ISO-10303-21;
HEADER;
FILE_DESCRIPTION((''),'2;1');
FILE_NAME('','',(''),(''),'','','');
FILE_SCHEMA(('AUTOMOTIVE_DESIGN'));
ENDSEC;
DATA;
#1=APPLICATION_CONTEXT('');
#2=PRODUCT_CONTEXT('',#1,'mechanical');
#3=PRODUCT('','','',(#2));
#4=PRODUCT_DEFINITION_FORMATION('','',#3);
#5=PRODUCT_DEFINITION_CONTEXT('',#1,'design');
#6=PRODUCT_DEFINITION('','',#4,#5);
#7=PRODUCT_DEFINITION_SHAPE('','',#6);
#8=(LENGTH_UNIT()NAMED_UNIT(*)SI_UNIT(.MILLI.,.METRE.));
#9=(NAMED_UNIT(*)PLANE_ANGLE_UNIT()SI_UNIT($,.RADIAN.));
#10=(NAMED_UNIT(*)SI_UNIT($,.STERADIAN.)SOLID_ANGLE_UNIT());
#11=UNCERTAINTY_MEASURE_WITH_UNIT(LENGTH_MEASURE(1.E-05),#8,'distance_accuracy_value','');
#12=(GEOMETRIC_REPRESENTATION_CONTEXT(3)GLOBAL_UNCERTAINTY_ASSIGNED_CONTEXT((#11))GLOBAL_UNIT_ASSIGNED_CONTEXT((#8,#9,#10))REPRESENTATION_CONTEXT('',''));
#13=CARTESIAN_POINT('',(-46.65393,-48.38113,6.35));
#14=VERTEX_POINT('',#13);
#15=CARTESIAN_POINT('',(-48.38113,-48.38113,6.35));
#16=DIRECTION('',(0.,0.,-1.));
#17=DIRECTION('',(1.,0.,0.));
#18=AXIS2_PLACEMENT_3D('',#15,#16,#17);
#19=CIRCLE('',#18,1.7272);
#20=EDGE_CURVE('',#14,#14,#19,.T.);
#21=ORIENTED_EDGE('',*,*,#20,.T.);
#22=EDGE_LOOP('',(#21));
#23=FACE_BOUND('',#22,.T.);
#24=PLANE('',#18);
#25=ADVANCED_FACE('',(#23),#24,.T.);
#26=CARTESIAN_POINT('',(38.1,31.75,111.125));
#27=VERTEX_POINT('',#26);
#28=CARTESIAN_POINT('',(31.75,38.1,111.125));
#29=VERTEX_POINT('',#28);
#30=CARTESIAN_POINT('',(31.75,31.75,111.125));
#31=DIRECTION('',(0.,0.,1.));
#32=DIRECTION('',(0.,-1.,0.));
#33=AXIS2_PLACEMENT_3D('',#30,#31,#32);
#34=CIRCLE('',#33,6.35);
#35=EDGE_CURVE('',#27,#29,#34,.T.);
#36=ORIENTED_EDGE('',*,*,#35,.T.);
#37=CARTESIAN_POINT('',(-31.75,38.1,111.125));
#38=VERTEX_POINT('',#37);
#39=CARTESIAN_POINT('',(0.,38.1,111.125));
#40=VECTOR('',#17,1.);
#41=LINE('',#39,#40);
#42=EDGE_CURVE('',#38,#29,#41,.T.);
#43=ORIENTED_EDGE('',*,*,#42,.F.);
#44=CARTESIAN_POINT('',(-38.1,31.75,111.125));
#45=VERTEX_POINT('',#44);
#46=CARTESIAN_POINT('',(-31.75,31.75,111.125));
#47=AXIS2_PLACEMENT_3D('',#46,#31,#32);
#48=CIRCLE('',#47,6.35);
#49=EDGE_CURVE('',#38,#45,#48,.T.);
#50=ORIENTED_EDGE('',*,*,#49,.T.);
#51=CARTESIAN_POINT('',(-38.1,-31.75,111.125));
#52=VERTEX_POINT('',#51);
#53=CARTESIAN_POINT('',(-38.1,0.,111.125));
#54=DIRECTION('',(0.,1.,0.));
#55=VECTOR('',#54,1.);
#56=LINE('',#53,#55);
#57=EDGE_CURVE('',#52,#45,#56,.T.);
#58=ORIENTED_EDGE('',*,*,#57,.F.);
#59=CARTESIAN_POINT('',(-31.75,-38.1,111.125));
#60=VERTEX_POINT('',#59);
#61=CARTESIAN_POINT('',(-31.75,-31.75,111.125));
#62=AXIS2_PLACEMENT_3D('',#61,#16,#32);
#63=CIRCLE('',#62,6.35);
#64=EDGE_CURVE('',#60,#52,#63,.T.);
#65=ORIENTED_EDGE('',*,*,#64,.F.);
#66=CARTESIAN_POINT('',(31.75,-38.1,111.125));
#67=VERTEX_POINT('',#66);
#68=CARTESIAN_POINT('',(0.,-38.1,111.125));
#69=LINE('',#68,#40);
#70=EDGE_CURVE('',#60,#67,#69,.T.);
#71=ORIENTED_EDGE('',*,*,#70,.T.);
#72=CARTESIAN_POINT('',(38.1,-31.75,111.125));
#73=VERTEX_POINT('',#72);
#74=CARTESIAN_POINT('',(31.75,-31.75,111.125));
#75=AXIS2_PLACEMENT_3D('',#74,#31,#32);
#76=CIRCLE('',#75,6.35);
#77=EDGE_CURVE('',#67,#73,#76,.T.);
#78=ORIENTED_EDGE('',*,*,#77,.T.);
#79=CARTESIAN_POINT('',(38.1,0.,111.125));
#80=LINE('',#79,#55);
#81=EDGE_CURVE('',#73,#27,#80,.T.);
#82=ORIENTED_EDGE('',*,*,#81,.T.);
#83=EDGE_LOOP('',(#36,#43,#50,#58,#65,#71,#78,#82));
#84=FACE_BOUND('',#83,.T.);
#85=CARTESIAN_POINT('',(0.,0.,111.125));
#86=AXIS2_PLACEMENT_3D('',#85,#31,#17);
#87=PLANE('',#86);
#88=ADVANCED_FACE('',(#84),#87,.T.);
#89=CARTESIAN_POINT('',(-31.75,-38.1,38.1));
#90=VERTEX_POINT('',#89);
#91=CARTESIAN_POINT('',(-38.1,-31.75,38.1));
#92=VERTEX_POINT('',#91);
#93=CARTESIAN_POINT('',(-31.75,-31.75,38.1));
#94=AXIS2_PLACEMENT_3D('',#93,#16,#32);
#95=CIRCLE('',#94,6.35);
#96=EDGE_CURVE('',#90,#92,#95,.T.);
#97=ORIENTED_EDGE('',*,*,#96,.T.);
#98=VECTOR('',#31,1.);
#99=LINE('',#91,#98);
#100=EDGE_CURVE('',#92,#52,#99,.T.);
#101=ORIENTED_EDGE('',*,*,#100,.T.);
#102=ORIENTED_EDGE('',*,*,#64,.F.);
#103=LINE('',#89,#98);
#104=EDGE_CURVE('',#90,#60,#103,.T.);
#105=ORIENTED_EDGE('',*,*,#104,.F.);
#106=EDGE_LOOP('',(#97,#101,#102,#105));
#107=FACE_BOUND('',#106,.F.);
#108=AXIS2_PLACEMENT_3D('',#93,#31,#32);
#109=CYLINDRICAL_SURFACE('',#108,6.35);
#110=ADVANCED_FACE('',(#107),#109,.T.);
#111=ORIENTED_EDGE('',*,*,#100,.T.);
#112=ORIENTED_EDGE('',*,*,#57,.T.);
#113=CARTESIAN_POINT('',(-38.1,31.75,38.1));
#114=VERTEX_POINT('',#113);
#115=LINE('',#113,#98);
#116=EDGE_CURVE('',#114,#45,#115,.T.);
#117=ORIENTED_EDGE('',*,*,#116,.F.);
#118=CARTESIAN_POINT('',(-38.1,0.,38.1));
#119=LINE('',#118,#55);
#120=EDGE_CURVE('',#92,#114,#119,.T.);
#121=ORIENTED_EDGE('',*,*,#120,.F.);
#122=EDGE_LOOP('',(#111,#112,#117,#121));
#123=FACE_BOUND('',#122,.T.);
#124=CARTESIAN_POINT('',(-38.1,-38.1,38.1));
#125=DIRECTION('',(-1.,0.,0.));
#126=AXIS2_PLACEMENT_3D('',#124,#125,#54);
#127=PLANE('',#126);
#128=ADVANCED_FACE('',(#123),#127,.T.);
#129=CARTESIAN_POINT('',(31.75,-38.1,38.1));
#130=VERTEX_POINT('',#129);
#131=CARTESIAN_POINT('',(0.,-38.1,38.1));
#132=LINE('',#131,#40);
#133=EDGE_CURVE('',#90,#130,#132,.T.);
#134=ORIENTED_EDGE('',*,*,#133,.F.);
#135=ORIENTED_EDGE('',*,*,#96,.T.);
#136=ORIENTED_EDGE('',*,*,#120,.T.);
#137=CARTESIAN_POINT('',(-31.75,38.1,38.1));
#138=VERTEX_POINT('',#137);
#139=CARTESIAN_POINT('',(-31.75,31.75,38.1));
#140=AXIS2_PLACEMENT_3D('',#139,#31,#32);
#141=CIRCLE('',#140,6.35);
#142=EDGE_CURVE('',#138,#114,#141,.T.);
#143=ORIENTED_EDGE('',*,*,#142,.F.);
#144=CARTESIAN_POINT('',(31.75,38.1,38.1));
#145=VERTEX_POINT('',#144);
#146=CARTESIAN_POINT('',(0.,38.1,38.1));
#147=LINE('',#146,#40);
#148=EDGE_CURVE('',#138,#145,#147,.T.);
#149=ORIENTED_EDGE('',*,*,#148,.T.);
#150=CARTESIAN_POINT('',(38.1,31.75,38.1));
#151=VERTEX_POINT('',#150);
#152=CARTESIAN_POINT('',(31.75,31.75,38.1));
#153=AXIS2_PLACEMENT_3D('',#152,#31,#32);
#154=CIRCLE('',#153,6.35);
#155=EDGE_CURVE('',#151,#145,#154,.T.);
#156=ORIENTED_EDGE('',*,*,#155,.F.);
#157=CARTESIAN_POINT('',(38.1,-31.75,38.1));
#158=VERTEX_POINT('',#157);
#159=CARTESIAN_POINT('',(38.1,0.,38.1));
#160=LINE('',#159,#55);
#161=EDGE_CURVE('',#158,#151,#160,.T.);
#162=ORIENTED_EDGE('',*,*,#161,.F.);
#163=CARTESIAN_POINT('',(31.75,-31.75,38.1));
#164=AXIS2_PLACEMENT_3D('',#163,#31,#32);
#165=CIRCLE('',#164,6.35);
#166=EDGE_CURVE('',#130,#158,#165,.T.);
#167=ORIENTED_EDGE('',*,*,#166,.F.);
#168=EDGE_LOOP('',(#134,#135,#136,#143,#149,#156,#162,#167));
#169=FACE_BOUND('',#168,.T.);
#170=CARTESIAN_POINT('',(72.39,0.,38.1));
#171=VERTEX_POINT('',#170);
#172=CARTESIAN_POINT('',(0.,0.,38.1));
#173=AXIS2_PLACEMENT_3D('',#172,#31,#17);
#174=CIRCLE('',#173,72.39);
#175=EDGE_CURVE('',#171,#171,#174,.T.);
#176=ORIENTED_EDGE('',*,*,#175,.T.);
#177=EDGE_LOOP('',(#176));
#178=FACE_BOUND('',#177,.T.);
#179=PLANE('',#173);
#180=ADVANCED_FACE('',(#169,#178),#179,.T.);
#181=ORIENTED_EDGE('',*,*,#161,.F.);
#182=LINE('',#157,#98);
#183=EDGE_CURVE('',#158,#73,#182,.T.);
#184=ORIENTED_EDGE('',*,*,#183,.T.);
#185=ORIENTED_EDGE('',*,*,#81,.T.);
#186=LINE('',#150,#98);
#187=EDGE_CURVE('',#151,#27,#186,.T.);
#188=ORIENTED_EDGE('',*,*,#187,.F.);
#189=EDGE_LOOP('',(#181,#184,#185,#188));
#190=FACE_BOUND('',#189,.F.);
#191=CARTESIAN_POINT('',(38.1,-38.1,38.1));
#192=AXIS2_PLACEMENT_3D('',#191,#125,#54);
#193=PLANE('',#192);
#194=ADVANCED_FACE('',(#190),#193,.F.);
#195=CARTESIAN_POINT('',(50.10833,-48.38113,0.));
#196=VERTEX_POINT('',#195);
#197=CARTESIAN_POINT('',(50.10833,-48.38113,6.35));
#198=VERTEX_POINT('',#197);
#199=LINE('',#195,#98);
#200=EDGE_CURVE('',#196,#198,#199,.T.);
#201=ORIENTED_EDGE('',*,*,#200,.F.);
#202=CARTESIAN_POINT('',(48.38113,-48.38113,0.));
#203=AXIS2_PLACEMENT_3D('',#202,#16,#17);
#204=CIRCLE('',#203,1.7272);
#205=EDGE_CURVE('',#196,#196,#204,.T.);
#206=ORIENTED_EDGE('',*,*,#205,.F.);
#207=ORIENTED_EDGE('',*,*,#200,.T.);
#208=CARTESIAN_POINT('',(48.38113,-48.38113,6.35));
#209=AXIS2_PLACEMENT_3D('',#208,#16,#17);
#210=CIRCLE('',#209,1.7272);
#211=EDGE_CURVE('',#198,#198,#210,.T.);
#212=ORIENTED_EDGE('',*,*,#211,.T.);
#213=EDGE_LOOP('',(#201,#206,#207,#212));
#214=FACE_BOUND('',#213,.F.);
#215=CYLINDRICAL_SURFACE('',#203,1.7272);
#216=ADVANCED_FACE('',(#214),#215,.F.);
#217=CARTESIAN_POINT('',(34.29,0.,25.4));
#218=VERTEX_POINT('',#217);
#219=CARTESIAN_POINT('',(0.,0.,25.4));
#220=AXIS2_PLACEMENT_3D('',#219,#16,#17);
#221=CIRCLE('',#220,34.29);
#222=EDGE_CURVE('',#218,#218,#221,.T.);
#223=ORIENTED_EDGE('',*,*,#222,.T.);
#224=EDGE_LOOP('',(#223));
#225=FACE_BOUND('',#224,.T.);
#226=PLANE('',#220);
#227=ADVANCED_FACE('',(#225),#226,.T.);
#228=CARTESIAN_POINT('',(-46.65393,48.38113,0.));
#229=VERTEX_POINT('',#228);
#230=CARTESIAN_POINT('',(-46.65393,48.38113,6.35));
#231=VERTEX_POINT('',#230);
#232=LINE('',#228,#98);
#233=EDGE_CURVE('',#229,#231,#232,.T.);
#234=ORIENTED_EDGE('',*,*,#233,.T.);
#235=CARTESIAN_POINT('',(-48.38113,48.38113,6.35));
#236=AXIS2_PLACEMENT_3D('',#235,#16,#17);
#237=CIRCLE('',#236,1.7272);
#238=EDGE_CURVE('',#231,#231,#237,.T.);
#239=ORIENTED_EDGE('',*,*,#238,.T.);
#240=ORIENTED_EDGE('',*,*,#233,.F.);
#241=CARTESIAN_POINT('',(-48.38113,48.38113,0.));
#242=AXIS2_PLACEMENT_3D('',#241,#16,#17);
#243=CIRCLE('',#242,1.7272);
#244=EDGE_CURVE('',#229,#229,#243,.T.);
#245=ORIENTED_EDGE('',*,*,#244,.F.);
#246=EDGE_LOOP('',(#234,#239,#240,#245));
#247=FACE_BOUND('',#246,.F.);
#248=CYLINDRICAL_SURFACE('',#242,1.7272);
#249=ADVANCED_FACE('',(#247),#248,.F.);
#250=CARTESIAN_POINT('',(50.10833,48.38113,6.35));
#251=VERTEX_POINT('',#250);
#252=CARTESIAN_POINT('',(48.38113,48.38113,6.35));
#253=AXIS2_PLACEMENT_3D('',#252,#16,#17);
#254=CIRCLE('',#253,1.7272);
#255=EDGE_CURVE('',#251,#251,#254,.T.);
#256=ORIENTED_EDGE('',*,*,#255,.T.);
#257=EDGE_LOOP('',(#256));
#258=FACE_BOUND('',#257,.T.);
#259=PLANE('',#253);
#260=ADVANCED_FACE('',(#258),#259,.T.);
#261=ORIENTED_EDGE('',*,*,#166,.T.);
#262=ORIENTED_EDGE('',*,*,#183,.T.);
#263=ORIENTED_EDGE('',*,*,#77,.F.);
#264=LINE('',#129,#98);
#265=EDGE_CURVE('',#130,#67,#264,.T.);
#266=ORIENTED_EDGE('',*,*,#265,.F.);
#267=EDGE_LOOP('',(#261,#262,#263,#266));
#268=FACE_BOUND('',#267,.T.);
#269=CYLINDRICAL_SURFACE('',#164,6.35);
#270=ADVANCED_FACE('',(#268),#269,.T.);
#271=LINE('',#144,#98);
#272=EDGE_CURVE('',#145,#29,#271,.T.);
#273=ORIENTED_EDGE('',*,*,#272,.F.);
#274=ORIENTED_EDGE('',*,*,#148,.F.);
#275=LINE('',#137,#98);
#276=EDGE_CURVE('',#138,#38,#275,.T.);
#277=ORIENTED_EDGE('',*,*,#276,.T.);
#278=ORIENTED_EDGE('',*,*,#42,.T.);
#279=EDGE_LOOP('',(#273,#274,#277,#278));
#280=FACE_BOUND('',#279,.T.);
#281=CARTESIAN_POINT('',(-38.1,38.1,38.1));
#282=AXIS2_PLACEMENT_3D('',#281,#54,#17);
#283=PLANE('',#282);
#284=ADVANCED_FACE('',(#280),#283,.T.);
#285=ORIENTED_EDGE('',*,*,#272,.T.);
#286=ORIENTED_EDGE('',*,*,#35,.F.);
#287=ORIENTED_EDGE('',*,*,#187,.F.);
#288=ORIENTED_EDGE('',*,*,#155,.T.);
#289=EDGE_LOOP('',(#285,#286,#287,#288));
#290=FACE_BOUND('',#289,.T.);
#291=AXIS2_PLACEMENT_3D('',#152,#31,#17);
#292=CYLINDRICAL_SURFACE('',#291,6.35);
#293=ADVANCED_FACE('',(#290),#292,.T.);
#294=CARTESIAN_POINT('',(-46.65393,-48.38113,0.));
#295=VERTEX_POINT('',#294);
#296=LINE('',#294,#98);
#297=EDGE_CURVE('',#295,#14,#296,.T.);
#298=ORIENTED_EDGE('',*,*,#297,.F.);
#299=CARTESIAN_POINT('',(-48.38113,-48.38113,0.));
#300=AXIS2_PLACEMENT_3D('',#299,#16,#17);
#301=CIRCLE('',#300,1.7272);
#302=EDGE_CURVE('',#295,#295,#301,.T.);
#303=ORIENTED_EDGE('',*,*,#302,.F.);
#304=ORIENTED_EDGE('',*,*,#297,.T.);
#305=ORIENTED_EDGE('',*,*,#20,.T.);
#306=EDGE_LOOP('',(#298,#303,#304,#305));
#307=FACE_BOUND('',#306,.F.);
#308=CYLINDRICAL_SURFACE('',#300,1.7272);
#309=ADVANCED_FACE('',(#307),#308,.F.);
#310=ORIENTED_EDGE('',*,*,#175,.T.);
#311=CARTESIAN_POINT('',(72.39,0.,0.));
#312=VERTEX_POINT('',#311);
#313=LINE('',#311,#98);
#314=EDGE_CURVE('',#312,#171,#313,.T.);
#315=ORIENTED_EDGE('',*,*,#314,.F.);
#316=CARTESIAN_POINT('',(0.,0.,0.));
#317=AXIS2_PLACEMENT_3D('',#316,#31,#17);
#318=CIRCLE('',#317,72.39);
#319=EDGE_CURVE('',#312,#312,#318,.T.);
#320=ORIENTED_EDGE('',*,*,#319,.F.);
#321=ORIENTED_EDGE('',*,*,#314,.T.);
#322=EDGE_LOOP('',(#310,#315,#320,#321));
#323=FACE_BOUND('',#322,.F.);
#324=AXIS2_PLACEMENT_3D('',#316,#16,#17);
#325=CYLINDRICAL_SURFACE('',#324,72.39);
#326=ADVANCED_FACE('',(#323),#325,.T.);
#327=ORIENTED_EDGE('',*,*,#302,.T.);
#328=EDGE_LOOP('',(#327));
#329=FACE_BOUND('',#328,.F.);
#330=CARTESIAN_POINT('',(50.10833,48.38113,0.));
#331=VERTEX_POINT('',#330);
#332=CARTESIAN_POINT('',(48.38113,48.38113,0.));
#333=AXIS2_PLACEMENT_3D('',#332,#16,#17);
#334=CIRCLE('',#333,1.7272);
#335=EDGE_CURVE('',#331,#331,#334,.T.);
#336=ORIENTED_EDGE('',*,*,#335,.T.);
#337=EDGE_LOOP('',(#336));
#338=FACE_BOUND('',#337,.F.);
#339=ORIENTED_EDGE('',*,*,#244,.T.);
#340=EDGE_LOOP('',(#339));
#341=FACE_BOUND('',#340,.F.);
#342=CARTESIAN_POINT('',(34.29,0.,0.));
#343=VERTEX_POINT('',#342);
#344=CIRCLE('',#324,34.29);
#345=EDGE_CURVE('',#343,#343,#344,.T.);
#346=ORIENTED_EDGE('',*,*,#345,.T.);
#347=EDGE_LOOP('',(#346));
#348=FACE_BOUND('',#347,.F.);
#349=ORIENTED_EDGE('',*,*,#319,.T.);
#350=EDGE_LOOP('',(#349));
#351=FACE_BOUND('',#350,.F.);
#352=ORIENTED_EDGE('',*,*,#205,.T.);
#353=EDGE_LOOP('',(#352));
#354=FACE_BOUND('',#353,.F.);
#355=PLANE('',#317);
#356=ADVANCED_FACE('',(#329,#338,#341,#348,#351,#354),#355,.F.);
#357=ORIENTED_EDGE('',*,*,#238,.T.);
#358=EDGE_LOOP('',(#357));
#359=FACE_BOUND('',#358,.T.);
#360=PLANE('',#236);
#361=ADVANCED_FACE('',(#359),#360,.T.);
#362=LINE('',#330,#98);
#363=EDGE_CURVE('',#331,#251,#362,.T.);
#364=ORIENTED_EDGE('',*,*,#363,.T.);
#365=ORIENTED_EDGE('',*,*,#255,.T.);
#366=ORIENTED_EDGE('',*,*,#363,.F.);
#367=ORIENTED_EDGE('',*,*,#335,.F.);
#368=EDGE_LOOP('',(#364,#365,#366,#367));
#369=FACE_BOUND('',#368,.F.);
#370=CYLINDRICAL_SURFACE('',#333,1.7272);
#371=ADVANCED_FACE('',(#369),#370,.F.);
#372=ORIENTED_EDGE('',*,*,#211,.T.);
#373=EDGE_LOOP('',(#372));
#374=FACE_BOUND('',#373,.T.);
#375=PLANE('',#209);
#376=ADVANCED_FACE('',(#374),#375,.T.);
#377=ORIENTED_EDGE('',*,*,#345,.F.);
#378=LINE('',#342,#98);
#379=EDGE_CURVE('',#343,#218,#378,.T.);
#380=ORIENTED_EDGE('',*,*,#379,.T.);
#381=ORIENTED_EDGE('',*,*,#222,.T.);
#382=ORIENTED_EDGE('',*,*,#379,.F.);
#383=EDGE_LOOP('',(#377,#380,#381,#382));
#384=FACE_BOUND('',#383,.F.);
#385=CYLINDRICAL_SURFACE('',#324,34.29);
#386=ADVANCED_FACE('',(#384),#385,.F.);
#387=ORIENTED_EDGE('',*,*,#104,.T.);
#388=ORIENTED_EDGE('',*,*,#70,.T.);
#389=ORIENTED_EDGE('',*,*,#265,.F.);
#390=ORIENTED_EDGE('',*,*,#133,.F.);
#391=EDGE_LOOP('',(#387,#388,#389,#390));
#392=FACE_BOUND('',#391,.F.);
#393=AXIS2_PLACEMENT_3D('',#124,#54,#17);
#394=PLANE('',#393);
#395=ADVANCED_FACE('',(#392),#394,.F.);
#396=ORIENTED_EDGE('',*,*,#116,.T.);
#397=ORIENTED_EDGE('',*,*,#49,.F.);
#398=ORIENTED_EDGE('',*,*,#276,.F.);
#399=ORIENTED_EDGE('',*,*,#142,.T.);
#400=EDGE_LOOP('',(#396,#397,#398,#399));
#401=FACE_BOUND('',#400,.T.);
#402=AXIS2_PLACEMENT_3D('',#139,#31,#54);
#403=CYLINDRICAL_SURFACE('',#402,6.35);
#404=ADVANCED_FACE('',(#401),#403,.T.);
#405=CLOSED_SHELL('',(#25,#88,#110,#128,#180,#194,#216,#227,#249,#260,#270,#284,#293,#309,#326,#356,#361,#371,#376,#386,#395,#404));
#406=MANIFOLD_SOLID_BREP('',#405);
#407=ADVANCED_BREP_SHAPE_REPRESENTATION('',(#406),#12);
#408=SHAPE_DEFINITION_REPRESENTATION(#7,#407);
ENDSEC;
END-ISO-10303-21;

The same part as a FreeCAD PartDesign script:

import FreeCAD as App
import Part
import Sketcher
Q = App.Units.Quantity


def edges_at(feature, points):
    """Names of the edges that pass closest to the given points."""
    edges = feature.Shape.Edges
    near = lambda p: min(range(len(edges)), key=lambda i: edges[i].distToShape(Part.Vertex(*p))[0])
    return sorted({f"Edge{near(p) + 1}" for p in points})

doc = App.newDocument("Part")
params = doc.addObject("Spreadsheet::Sheet", "Params")
for row, (alias, value) in enumerate([
    ("sketch1_diameter", "5.7 in"),
    ("pad1_length", "1.5 in"),
    ("sketch2_width", "3 in"),
    ("pad2_length", "2.875 in"),
    ("fillet_radius", "0.25 in"),
    ("sketch3_diameter", "0.136 in"),
    ("pocket1_length", "0.25 in"),
    ("sketch4_diameter", "2.7 in"),
    ("pocket2_length", "1 in"),
], start=1):
    params.set(f"A{row}", alias)
    params.set(f"B{row}", "=" + value)
    params.setAlias(f"B{row}", alias)

body = doc.addObject("PartDesign::Body", "Body")

# Sketch on XY plane
sketch1 = doc.addObject("Sketcher::SketchObject", "Sketch")
body.addObject(sketch1)
sketch1.AttachmentSupport = (doc.XY_Plane, [""])
sketch1.MapMode = "FlatFace"
sketch1.addGeometry(Part.Circle(App.Vector(0, 0, 0), App.Vector(0, 0, 1), 72), False)
sketch1.addConstraint(Sketcher.Constraint("Coincident", 0, 3, -1, 1))
sketch1.addConstraint(Sketcher.Constraint("Diameter", 0, Q("5.7 in")))
sketch1.setExpression("Constraints[1]", "Params.sketch1_diameter")
pad1 = doc.addObject("PartDesign::Pad", "Pad")
body.addObject(pad1)
pad1.Profile = sketch1
pad1.setExpression("Length", "Params.pad1_length")

# Sketch on XY plane
sketch2 = doc.addObject("Sketcher::SketchObject", "Sketch001")
body.addObject(sketch2)
sketch2.AttachmentSupport = (doc.XY_Plane, [""])
sketch2.MapMode = "FlatFace"
sketch2.AttachmentOffset = App.Placement(App.Vector(0, 0, 1.5 * 25.4), App.Rotation())
sketch2.addGeometry(Part.LineSegment(App.Vector(-38, 38, 0), App.Vector(-38, -38, 0)), False)
sketch2.addGeometry(Part.LineSegment(App.Vector(-38, -38, 0), App.Vector(38, -38, 0)), False)
sketch2.addGeometry(Part.LineSegment(App.Vector(38, -38, 0), App.Vector(38, 38, 0)), False)
sketch2.addGeometry(Part.LineSegment(App.Vector(38, 38, 0), App.Vector(-38, 38, 0)), False)
sketch2.addConstraint(Sketcher.Constraint("Coincident", 0, 2, 1, 1))
sketch2.addConstraint(Sketcher.Constraint("Coincident", 1, 2, 2, 1))
sketch2.addConstraint(Sketcher.Constraint("Coincident", 2, 2, 3, 1))
sketch2.addConstraint(Sketcher.Constraint("Coincident", 3, 2, 0, 1))
sketch2.addConstraint(Sketcher.Constraint("Vertical", 0))
sketch2.addConstraint(Sketcher.Constraint("Horizontal", 1))
sketch2.addConstraint(Sketcher.Constraint("Vertical", 2))
sketch2.addConstraint(Sketcher.Constraint("Horizontal", 3))
sketch2.addConstraint(Sketcher.Constraint("Symmetric", 0, 2, 2, 2, -1, 1))
sketch2.addConstraint(Sketcher.Constraint("Equal", 3, 0))
sketch2.addConstraint(Sketcher.Constraint("DistanceX", 1, 1, 1, 2, Q("3 in")))
sketch2.setExpression("Constraints[10]", "Params.sketch2_width")
pad2 = doc.addObject("PartDesign::Pad", "Pad001")
body.addObject(pad2)
pad2.Profile = sketch2
pad2.setExpression("Length", "Params.pad2_length")
doc.recompute()

fillet = doc.addObject("PartDesign::Fillet", "Fillet")
body.addObject(fillet)
fillet.Base = (pad2, edges_at(pad2, [
    (-38.1, -38.1, 74.612),
    (-38.1, 38.1, 74.612),
    (38.1, -38.1, 74.612),
    (38.1, 38.1, 74.612),
]))
fillet.setExpression("Radius", "Params.fillet_radius")

# Sketch on XY plane
sketch3 = doc.addObject("Sketcher::SketchObject", "Sketch002")
body.addObject(sketch3)
sketch3.AttachmentSupport = (doc.XY_Plane, [""])
sketch3.MapMode = "FlatFace"
sketch3.addGeometry(Part.Circle(App.Vector(-48.4, -48.4, 0), App.Vector(0, 0, 1), 1.7), False)
sketch3.addGeometry(Part.Circle(App.Vector(-48.4, 48.4, 0), App.Vector(0, 0, 1), 1.7), False)
sketch3.addGeometry(Part.Circle(App.Vector(48.4, 48.4, 0), App.Vector(0, 0, 1), 1.7), False)
sketch3.addGeometry(Part.Circle(App.Vector(48.4, -48.4, 0), App.Vector(0, 0, 1), 1.7), False)
sketch3.addConstraint(Sketcher.Constraint("Equal", 0, 1))
sketch3.addConstraint(Sketcher.Constraint("Equal", 1, 2))
sketch3.addConstraint(Sketcher.Constraint("Equal", 2, 3))
sketch3.addConstraint(Sketcher.Constraint("Symmetric", 0, 3, 2, 3, -1, 1))
sketch3.addConstraint(Sketcher.Constraint("Symmetric", 1, 3, 3, 3, -1, 1))
sketch3.addConstraint(Sketcher.Constraint("Symmetric", 1, 3, 2, 3, -2))
sketch3.addConstraint(Sketcher.Constraint("Diameter", 0, Q("0.136 in")))
sketch3.addConstraint(Sketcher.Constraint("DistanceX", 0, 3, -1, 1, Q("48.38113 mm")))
sketch3.addConstraint(Sketcher.Constraint("DistanceY", 0, 3, -1, 1, Q("48.38113 mm")))
sketch3.setExpression("Constraints[6]", "Params.sketch3_diameter")
pocket1 = doc.addObject("PartDesign::Pocket", "Pocket")
body.addObject(pocket1)
pocket1.Profile = sketch3
pocket1.setExpression("Length", "Params.pocket1_length")
pocket1.Reversed = True

# Sketch on XY plane
sketch4 = doc.addObject("Sketcher::SketchObject", "Sketch003")
body.addObject(sketch4)
sketch4.AttachmentSupport = (doc.XY_Plane, [""])
sketch4.MapMode = "FlatFace"
sketch4.addGeometry(Part.Circle(App.Vector(0, 0, 0), App.Vector(0, 0, 1), 34), False)
sketch4.addConstraint(Sketcher.Constraint("Coincident", 0, 3, -1, 1))
sketch4.addConstraint(Sketcher.Constraint("Diameter", 0, Q("2.7 in")))
sketch4.setExpression("Constraints[1]", "Params.sketch4_diameter")
pocket2 = doc.addObject("PartDesign::Pocket", "Pocket001")
body.addObject(pocket2)
pocket2.Profile = sketch4
pocket2.setExpression("Length", "Params.pocket2_length")
pocket2.Reversed = True

doc.recompute()
